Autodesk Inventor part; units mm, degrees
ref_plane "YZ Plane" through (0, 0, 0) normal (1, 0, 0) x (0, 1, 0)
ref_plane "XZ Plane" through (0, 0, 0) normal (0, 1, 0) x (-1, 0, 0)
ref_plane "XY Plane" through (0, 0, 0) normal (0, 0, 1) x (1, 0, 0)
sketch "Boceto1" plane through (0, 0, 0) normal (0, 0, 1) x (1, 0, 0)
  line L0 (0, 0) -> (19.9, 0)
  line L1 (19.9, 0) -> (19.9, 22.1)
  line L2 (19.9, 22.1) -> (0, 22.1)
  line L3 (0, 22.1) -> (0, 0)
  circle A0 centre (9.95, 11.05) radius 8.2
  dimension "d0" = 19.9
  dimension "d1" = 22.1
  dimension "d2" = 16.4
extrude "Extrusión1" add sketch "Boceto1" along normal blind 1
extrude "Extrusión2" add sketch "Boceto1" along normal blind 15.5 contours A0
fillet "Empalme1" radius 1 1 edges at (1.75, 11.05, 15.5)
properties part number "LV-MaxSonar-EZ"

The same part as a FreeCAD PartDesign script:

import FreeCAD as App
import Part
import Sketcher

V = App.Vector


def edges_at(feature, points):
    """Names of the edges that pass closest to the given points."""
    edges = feature.Shape.Edges
    near = lambda p: min(range(len(edges)), key=lambda i: edges[i].distToShape(Part.Vertex(*p))[0])
    return sorted({f"Edge{near(p) + 1}" for p in points})

doc = App.newDocument("Part")
body = doc.addObject("PartDesign::Body", "Body")

sketch1 = body.newObject("Sketcher::SketchObject", "Sketch")
sketch1.AttachmentSupport = (doc.getObject("XY_Plane"), [""])
sketch1.MapMode = "FlatFace"
sketch1.addGeometry(Part.LineSegment(V(0, 22, 0), V(0, 0, 0)), False)
sketch1.addGeometry(Part.LineSegment(V(0, 0, 0), V(20, 0, 0)), False)
sketch1.addGeometry(Part.LineSegment(V(20, 0, 0), V(20, 22, 0)), False)
sketch1.addGeometry(Part.LineSegment(V(20, 22, 0), V(0, 22, 0)), False)
sketch1.addGeometry(Part.Circle(V(10, 11, 0), V(0, 0, 1), 8), False)
sketch1.addConstraint(Sketcher.Constraint("Coincident", 0, 2, 1, 1))
sketch1.addConstraint(Sketcher.Constraint("Coincident", 1, 2, 2, 1))
sketch1.addConstraint(Sketcher.Constraint("Coincident", 2, 2, 3, 1))
sketch1.addConstraint(Sketcher.Constraint("Coincident", 3, 2, 0, 1))
sketch1.addConstraint(Sketcher.Constraint("Vertical", 0))
sketch1.addConstraint(Sketcher.Constraint("Horizontal", 1))
sketch1.addConstraint(Sketcher.Constraint("Vertical", 2))
sketch1.addConstraint(Sketcher.Constraint("Horizontal", 3))
sketch1.addConstraint(Sketcher.Constraint("Coincident", 0, 2, -1, 1))
sketch1.addConstraint(Sketcher.Constraint("Diameter", 4, 16.4))
sketch1.addConstraint(Sketcher.Constraint("DistanceX", 1, 1, 1, 2, 19.9))
sketch1.addConstraint(Sketcher.Constraint("DistanceY", 0, 2, 0, 1, 22.1))
sketch1.addConstraint(Sketcher.Constraint("DistanceX", -1, 1, 4, 3, 9.95))
sketch1.addConstraint(Sketcher.Constraint("DistanceY", -1, 1, 4, 3, 11.05))
pad1 = body.newObject("PartDesign::Pad", "Pad")
pad1.Profile = sketch1
pad1.Length = 1

sketch2 = body.newObject("Sketcher::SketchObject", "Sketch001")
sketch2.AttachmentSupport = (doc.getObject("XY_Plane"), [""])
sketch2.MapMode = "FlatFace"
sketch2.addGeometry(Part.Circle(V(10, 11, 0), V(0, 0, 1), 8), False)
sketch2.addConstraint(Sketcher.Constraint("Diameter", 0, 16.4))
sketch2.addConstraint(Sketcher.Constraint("DistanceX", -1, 1, 0, 3, 9.95))
sketch2.addConstraint(Sketcher.Constraint("DistanceY", -1, 1, 0, 3, 11.05))
pad2 = body.newObject("PartDesign::Pad", "Pad001")
pad2.Profile = sketch2
pad2.Length = 15.5
doc.recompute()

fillet = body.newObject("PartDesign::Fillet", "Fillet")
fillet.Base = (pad2, edges_at(pad2, [(1.75, 11.05, 15.5)]))
fillet.Radius = 1

doc.recompute()
